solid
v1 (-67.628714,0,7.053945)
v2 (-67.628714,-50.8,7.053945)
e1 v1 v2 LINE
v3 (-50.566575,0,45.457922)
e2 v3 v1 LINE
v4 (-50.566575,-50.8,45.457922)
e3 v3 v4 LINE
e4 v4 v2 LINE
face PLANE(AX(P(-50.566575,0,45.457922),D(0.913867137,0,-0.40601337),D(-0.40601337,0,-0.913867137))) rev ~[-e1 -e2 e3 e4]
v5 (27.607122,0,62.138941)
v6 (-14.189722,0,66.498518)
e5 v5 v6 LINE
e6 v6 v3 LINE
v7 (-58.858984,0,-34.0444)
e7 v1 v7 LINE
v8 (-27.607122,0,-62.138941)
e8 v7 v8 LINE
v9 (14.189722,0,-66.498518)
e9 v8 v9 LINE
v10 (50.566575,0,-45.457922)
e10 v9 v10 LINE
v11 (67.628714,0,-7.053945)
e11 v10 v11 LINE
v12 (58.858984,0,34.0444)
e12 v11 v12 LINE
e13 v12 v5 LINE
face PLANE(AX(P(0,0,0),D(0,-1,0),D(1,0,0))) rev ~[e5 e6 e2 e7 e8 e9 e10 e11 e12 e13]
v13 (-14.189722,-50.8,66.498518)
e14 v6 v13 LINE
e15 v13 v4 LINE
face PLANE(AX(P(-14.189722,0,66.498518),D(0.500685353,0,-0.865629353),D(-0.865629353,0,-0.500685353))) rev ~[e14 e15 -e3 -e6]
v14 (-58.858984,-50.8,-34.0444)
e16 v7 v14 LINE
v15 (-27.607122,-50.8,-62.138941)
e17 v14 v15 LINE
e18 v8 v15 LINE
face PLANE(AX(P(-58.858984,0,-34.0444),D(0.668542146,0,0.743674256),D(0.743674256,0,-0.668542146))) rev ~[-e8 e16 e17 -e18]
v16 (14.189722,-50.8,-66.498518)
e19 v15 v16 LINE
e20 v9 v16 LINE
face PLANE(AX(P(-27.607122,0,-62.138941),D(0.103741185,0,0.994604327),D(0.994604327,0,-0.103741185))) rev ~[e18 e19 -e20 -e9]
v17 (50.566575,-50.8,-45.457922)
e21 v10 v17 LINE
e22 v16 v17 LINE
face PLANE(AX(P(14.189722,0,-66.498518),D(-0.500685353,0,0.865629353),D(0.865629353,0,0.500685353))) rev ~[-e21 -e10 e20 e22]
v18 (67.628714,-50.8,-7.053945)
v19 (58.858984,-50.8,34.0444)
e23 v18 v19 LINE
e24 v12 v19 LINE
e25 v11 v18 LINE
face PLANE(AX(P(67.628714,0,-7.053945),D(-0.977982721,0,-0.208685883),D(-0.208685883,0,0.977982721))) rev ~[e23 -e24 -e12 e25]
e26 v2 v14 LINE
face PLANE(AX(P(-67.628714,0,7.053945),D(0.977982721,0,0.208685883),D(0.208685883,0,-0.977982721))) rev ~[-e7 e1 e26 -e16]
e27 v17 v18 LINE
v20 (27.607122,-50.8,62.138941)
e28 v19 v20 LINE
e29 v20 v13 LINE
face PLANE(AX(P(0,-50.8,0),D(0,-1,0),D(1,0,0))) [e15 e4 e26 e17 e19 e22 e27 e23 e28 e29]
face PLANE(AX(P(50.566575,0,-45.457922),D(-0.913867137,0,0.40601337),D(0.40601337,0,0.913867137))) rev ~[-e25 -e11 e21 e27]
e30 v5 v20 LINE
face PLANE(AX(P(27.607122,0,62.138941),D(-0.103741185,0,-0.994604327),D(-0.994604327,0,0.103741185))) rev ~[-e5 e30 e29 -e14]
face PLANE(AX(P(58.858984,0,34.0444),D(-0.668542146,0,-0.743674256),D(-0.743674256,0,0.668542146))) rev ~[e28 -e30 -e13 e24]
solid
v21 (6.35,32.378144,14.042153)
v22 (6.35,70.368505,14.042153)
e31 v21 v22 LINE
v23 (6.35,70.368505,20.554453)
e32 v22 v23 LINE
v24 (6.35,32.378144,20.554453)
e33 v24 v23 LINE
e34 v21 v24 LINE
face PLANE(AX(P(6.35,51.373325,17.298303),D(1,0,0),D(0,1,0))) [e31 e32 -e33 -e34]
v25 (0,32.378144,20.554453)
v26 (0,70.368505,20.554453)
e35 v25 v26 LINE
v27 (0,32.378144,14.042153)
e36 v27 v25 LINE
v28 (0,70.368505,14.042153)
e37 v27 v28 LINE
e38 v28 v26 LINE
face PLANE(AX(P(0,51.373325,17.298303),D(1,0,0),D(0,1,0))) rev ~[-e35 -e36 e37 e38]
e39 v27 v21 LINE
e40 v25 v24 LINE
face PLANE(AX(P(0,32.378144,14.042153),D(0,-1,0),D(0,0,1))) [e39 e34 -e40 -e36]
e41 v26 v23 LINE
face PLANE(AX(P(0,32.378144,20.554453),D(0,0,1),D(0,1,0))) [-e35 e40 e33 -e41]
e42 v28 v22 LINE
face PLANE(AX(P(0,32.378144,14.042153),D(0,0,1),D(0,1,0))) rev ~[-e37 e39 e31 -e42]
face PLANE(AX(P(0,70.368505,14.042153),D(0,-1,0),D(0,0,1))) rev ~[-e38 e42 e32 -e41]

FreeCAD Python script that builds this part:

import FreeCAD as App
import Part
import Sketcher

V = App.Vector
Q = App.Units.Quantity


def add_polygon(sketch, points):
    """Adds a closed chain of lines whose ends are joined by coincident constraints."""
    first, n = sketch.GeometryCount, len(points)
    for a, b in zip(points, points[1:] + points[:1]):
        sketch.addGeometry(Part.LineSegment(App.Vector(*a, 0), App.Vector(*b, 0)), False)
    for i in range(n):
        sketch.addConstraint(Sketcher.Constraint("Coincident", first + i, 2, first + (i + 1) % n, 1))

doc = App.newDocument("Part")
body = doc.addObject("PartDesign::Body", "Body")

sketch1 = body.newObject("Sketcher::SketchObject", "Sketch")
sketch1.AttachmentSupport = (doc.getObject("XZ_Plane"), [""])
sketch1.MapMode = "FlatFace"
add_polygon(sketch1, [(-14.189722, 66.498518), (-50.566575, 45.457922), (-67.628714, 7.053945), (-58.858984, -34.0444), (-27.607122, -62.138941), (14.189722, -66.498518), (50.566575, -45.457922), (67.628714, -7.053945), (58.858984, 34.0444), (27.607122, 62.138941)])
sketch1.addConstraint(Sketcher.Constraint("Symmetric", 0, 2, 5, 2, -1, 1))
sketch1.addConstraint(Sketcher.Constraint("Symmetric", 1, 2, 6, 2, -1, 1))
sketch1.addConstraint(Sketcher.Constraint("Symmetric", 2, 2, 7, 2, -1, 1))
sketch1.addConstraint(Sketcher.Constraint("Symmetric", 3, 2, 8, 2, -1, 1))
sketch1.addConstraint(Sketcher.Constraint("Symmetric", 4, 2, 9, 2, -1, 1))
sketch1.addConstraint(Sketcher.Constraint("Equal", 0, 1))
sketch1.addConstraint(Sketcher.Constraint("Equal", 1, 2))
sketch1.addConstraint(Sketcher.Constraint("Equal", 2, 3))
sketch1.addConstraint(Sketcher.Constraint("Equal", 3, 4))
sketch1.addConstraint(Sketcher.Constraint("DistanceY", 2, 2, -1, 1, Q("34.0444 mm")))
sketch1.addConstraint(Sketcher.Constraint("Distance", 0, Q("42.02359 mm")))
sketch1.addConstraint(Sketcher.Constraint("DistanceY", 3, 2, -1, 1, Q("62.138941 mm")))
sketch1.addConstraint(Sketcher.Constraint("DistanceY", 4, 2, -1, 1, Q("66.498518 mm")))
sketch1.addConstraint(Sketcher.Constraint("DistanceX", 1, 2, 0, 2, Q("17.062139 mm")))
sketch1.addConstraint(Sketcher.Constraint("DistanceX", 1, 2, 2, 2, Q("8.76973 mm")))
pad1 = body.newObject("PartDesign::Pad", "Pad")
pad1.Profile = sketch1
pad1.Length = Q("2 in")
body2 = doc.addObject("PartDesign::Body", "Body001")

sketch2 = body2.newObject("Sketcher::SketchObject", "Sketch001")
sketch2.AttachmentSupport = (doc.getObject("YZ_Plane001"), [""])
sketch2.MapMode = "FlatFace"
add_polygon(sketch2, [(32.378144, 20.554453), (32.378144, 14.042153), (70.368505, 14.042153), (70.368505, 20.554453)])
sketch2.addConstraint(Sketcher.Constraint("Vertical", 0))
sketch2.addConstraint(Sketcher.Constraint("Horizontal", 1))
sketch2.addConstraint(Sketcher.Constraint("Vertical", 2))
sketch2.addConstraint(Sketcher.Constraint("Horizontal", 3))
sketch2.addConstraint(Sketcher.Constraint("DistanceY", 0, 2, 0, 1, Q("6.512299 mm")))
sketch2.addConstraint(Sketcher.Constraint("DistanceX", 1, 1, 1, 2, Q("37.990361 mm")))
sketch2.addConstraint(Sketcher.Constraint("DistanceX", -1, 1, 0, 2, Q("32.378144 mm")))
sketch2.addConstraint(Sketcher.Constraint("DistanceY", -1, 1, 0, 2, Q("14.042153 mm")))
pad2 = body2.newObject("PartDesign::Pad", "Pad001")
pad2.Profile = sketch2
pad2.Length = Q("0.25 in")

doc.recompute()
